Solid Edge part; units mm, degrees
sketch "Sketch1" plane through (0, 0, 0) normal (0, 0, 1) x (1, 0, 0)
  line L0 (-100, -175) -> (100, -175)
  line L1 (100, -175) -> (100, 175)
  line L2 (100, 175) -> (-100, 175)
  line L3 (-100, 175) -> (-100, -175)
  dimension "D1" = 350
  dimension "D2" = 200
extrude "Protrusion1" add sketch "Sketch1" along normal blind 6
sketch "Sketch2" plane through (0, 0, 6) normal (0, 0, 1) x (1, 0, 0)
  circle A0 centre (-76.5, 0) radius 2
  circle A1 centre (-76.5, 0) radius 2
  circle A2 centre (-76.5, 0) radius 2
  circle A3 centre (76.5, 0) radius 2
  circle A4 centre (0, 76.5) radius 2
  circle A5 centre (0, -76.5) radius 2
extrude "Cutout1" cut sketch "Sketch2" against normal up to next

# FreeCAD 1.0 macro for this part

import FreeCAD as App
import Part
import Sketcher


def add_polygon(sketch, points):
    """Adds a closed chain of lines whose ends are joined by coincident constraints."""
    first, n = sketch.GeometryCount, len(points)
    for a, b in zip(points, points[1:] + points[:1]):
        sketch.addGeometry(Part.LineSegment(App.Vector(*a, 0), App.Vector(*b, 0)), False)
    for i in range(n):
        sketch.addConstraint(Sketcher.Constraint("Coincident", first + i, 2, first + (i + 1) % n, 1))

doc = App.newDocument("Part")
body = doc.addObject("PartDesign::Body", "Body")

# Sketch on XY plane
sketch1 = body.newObject("Sketcher::SketchObject", "Sketch")
sketch1.AttachmentSupport = (doc.getObject("XY_Plane"), [""])
sketch1.MapMode = "FlatFace"
add_polygon(sketch1, [(-100, 175), (-100, -175), (100, -175), (100, 175)])  # lines 0-3
sketch1.addConstraint([
    Sketcher.Constraint("Vertical", 0),
    Sketcher.Constraint("Horizontal", 1),
    Sketcher.Constraint("Vertical", 2),
    Sketcher.Constraint("Horizontal", 3),
    Sketcher.Constraint("Symmetric", 0, 2, 2, 2, -1, 1),
    Sketcher.Constraint("DistanceX", 0, 2, -1, 1, 100.0),
    Sketcher.Constraint("DistanceY", 0, 2, 0, 1, 350.0),
])
pad1 = body.newObject("PartDesign::Pad", "Pad")
pad1.Profile = sketch1
pad1.Length = 6

# Sketch on XY plane
sketch2 = body.newObject("Sketcher::SketchObject", "Sketch001")
sketch2.AttachmentSupport = (doc.getObject("XY_Plane"), [""])
sketch2.MapMode = "FlatFace"
sketch2.AttachmentOffset = App.Placement(App.Vector(0, 0, 6), App.Rotation())
sketch2.addGeometry([
    Part.Circle(App.Vector(-76.5, 0, 0), App.Vector(0, 0, 1), 2),
    Part.Circle(App.Vector(76.5, 0, 0), App.Vector(0, 0, 1), 2),
    Part.Circle(App.Vector(0, 76.5, 0), App.Vector(0, 0, 1), 2),
    Part.Circle(App.Vector(0, -76.5, 0), App.Vector(0, 0, 1), 2),
], False)
sketch2.addConstraint([
    Sketcher.Constraint("Equal", 0, 1),
    Sketcher.Constraint("Equal", 1, 2),
    Sketcher.Constraint("Equal", 2, 3),
    Sketcher.Constraint("Symmetric", 0, 3, 1, 3, -1, 1),
    Sketcher.Constraint("Symmetric", 2, 3, 3, 3, -1, 1),
    Sketcher.Constraint("PointOnObject", 0, 3, -1),
    Sketcher.Constraint("PointOnObject", 2, 3, -2),
    Sketcher.Constraint("Diameter", 0, 4.0),
    Sketcher.Constraint("DistanceX", 0, 3, 1, 3, 153.0),
    Sketcher.Constraint("DistanceY", 3, 3, 2, 3, 153.0),
])
pocket1 = body.newObject("PartDesign::Pocket", "Pocket")
pocket1.Profile = sketch2
pocket1.Length = 6

doc.recompute()
